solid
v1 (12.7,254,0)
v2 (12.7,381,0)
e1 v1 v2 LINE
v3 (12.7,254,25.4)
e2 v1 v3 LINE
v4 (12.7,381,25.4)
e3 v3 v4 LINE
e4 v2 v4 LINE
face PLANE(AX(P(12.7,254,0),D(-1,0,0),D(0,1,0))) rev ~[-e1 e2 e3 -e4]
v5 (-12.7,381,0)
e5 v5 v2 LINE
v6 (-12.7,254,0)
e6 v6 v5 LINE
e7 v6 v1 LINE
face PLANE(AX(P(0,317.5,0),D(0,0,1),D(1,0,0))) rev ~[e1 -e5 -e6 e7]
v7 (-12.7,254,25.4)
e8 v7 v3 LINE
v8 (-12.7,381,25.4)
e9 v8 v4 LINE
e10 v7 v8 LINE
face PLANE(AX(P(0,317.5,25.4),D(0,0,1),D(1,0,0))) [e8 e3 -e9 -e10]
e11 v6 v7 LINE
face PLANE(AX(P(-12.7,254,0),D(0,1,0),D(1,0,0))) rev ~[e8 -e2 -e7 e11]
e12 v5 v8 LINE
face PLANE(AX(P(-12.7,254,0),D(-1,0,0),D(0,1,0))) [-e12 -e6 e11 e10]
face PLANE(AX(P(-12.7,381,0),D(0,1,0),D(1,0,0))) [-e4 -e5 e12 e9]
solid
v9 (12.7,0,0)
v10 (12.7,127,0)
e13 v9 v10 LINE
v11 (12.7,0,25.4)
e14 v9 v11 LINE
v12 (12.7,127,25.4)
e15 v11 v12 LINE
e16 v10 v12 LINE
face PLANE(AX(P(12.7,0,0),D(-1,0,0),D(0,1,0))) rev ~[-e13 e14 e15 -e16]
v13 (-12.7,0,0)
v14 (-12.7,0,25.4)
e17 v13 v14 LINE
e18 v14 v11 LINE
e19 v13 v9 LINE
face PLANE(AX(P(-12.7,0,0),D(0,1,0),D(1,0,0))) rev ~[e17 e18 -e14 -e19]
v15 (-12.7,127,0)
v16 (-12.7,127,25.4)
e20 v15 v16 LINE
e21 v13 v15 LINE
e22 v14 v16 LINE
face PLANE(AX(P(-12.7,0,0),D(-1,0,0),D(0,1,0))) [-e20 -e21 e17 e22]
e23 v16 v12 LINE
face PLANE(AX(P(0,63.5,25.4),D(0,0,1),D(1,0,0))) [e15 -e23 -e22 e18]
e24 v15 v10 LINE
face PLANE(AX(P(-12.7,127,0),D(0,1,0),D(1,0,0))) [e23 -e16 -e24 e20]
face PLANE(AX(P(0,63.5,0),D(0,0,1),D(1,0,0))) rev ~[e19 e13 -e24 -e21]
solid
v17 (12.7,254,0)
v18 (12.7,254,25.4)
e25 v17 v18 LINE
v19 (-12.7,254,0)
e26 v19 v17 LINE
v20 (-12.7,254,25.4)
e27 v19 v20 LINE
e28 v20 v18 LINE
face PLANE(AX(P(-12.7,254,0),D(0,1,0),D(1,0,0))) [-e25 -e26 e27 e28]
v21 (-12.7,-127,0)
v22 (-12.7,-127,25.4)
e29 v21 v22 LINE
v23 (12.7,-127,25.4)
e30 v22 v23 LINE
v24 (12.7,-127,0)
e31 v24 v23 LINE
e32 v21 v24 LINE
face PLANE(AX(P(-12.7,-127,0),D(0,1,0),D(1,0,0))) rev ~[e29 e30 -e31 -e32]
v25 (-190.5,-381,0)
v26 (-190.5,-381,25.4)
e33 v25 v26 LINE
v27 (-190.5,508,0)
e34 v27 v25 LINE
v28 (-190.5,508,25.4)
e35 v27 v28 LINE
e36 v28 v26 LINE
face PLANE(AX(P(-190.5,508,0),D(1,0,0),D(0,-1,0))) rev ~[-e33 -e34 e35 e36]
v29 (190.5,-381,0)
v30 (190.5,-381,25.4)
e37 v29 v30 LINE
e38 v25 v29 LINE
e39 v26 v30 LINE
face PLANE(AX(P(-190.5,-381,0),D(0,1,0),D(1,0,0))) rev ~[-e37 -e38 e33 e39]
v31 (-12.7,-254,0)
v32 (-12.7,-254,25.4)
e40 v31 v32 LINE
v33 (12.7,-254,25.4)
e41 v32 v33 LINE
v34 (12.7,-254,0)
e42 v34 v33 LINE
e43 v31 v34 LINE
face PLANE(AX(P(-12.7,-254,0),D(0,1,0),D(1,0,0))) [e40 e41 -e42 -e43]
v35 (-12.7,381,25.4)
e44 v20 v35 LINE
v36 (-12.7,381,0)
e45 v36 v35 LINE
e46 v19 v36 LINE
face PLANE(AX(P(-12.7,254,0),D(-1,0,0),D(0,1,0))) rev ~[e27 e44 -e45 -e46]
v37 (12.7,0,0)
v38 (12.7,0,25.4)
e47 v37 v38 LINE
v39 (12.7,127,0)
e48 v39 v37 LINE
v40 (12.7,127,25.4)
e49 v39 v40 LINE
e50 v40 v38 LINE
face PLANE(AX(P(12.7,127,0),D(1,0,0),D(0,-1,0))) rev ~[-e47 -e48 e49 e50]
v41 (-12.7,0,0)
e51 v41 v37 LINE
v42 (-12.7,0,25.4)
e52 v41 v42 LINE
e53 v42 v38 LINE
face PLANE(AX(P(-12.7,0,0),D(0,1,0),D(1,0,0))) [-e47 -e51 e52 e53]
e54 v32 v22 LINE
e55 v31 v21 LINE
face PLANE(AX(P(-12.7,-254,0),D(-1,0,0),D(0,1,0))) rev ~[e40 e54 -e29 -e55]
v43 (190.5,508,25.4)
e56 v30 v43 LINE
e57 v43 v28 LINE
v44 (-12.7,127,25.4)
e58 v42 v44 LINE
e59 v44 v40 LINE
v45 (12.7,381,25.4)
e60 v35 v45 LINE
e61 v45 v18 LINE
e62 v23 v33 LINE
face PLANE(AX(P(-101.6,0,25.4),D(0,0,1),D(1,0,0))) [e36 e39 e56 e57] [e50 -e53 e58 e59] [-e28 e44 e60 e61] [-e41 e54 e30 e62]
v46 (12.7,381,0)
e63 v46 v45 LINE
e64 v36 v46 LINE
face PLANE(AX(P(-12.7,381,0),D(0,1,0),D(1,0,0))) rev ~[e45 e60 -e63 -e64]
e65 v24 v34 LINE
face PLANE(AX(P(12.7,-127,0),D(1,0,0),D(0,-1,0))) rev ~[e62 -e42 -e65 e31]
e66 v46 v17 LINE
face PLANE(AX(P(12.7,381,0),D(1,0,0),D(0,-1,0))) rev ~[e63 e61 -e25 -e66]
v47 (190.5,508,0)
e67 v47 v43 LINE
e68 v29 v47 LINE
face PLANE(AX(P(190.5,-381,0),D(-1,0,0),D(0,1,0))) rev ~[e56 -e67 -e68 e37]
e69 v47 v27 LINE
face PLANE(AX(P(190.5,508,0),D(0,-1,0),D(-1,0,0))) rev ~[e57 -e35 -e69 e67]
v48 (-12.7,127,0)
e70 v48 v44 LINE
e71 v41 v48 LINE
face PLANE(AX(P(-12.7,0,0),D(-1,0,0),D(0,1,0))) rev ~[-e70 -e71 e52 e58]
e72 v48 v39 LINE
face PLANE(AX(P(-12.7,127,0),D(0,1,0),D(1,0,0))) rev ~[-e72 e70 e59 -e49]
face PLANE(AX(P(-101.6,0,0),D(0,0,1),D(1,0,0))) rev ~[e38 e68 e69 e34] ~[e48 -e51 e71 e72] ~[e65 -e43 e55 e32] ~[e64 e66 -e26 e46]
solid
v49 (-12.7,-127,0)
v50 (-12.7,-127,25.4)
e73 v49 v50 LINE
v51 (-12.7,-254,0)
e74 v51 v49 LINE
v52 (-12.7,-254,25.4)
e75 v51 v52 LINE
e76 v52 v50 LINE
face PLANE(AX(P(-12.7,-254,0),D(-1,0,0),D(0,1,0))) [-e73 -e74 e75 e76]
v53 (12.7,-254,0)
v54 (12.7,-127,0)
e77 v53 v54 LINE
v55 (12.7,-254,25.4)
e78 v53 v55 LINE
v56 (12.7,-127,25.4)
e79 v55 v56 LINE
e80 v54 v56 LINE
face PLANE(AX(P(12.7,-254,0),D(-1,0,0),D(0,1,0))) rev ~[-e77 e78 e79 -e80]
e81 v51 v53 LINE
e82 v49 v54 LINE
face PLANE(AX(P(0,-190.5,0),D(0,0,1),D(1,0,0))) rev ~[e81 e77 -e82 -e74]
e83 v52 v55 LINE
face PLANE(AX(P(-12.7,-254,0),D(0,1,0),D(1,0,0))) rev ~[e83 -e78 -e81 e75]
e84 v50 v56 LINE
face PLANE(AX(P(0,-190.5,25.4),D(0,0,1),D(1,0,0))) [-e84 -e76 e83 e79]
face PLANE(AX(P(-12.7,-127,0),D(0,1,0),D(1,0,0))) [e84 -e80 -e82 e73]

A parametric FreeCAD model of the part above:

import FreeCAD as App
import Part
import Sketcher

V = App.Vector
Q = App.Units.Quantity

doc = App.newDocument("Part")
body = doc.addObject("PartDesign::Body", "Body")

# Sketch on XY plane
sketch1 = body.newObject("Sketcher::SketchObject", "Sketch")
sketch1.AttachmentSupport = (doc.getObject("XY_Plane"), [""])
sketch1.MapMode = "FlatFace"
sketch1.addGeometry([
    Part.LineSegment(V(-190.5, -381, 0), V(190.5, -381, 0)),  # 0
    Part.LineSegment(V(190.5, -381, 0), V(190.5, 508, 0)),  # 1
    Part.LineSegment(V(190.5, 508, 0), V(-190.5, 508, 0)),  # 2
    Part.LineSegment(V(-190.5, 508, 0), V(-190.5, -381, 0)),  # 3
    Part.LineSegment(V(-12.7, 254, 0), V(-12.7, 381, 0)),  # 4
    Part.LineSegment(V(-12.7, 381, 0), V(12.7, 381, 0)),  # 5
    Part.LineSegment(V(12.7, 381, 0), V(12.7, 254, 0)),  # 6
    Part.LineSegment(V(12.7, 254, 0), V(-12.7, 254, 0)),  # 7
    Part.LineSegment(V(-12.7, -254, 0), V(-12.7, -127, 0)),  # 8
    Part.LineSegment(V(-12.7, -127, 0), V(12.7, -127, 0)),  # 9
    Part.LineSegment(V(12.7, -127, 0), V(12.7, -254, 0)),  # 10
    Part.LineSegment(V(12.7, -254, 0), V(-12.7, -254, 0)),  # 11
    Part.LineSegment(V(-12.7, 0, 0), V(-12.7, 127, 0)),  # 12
    Part.LineSegment(V(-12.7, 127, 0), V(12.7, 127, 0)),  # 13
    Part.LineSegment(V(12.7, 127, 0), V(12.7, 0, 0)),  # 14
    Part.LineSegment(V(12.7, 0, 0), V(-12.7, 0, 0)),  # 15
], False)
sketch1.addConstraint([
    Sketcher.Constraint("Coincident", 0, 2, 1, 1),
    Sketcher.Constraint("Coincident", 1, 2, 2, 1),
    Sketcher.Constraint("Coincident", 2, 2, 3, 1),
    Sketcher.Constraint("Coincident", 3, 2, 0, 1),
    Sketcher.Constraint("Coincident", 4, 2, 5, 1),
    Sketcher.Constraint("Coincident", 5, 2, 6, 1),
    Sketcher.Constraint("Coincident", 6, 2, 7, 1),
    Sketcher.Constraint("Coincident", 7, 2, 4, 1),
    Sketcher.Constraint("Coincident", 8, 2, 9, 1),
    Sketcher.Constraint("Coincident", 9, 2, 10, 1),
    Sketcher.Constraint("Coincident", 10, 2, 11, 1),
    Sketcher.Constraint("Coincident", 11, 2, 8, 1),
    Sketcher.Constraint("Coincident", 12, 2, 13, 1),
    Sketcher.Constraint("Coincident", 13, 2, 14, 1),
    Sketcher.Constraint("Coincident", 14, 2, 15, 1),
    Sketcher.Constraint("Coincident", 15, 2, 12, 1),
    Sketcher.Constraint("Horizontal", 0),
    Sketcher.Constraint("Vertical", 1),
    Sketcher.Constraint("Horizontal", 2),
    Sketcher.Constraint("Vertical", 3),
    Sketcher.Constraint("Vertical", 4),
    Sketcher.Constraint("Horizontal", 5),
    Sketcher.Constraint("Vertical", 6),
    Sketcher.Constraint("Horizontal", 7),
    Sketcher.Constraint("Vertical", 8),
    Sketcher.Constraint("Horizontal", 9),
    Sketcher.Constraint("Vertical", 10),
    Sketcher.Constraint("Horizontal", 11),
    Sketcher.Constraint("Vertical", 12),
    Sketcher.Constraint("Horizontal", 13),
    Sketcher.Constraint("Vertical", 14),
    Sketcher.Constraint("Horizontal", 15),
    Sketcher.Constraint("Symmetric", 7, 2, 10, 2, -1, 1),
    Sketcher.Constraint("Symmetric", 9, 2, 12, 2, -1, 1),
    Sketcher.Constraint("Symmetric", 14, 2, 15, 2, -1, 1),
    Sketcher.Constraint("Vertical", 7, 2, 8, 2),
    Sketcher.Constraint("Vertical", 6, 2, 9, 2),
    Sketcher.Constraint("Equal", 6, 8),
    Sketcher.Constraint("Equal", 10, 12),
    Sketcher.Constraint("DistanceX", 0, 1, 0, 2, Q("15 in")),
    Sketcher.Constraint("DistanceX", 5, 1, 5, 2, Q("1 in")),
    Sketcher.Constraint("DistanceY", 1, 1, 1, 2, Q("35 in")),
    Sketcher.Constraint("DistanceY", 4, 1, 4, 2, Q("5 in")),
    Sketcher.Constraint("DistanceY", 0, 2, -1, 1, Q("15 in")),
    Sketcher.Constraint("DistanceX", 2, 2, 4, 2, Q("7 in")),
])
pad1 = body.newObject("PartDesign::Pad", "Pad")
pad1.Profile = sketch1
pad1.Length = Q("1 in")
body2 = doc.addObject("PartDesign::Body", "Body001")
body2.AllowCompound = True

# Sketch on XY plane
sketch2 = body2.newObject("Sketcher::SketchObject", "Sketch001")
sketch2.AttachmentSupport = (doc.getObject("XY_Plane001"), [""])
sketch2.MapMode = "FlatFace"
sketch2.addGeometry([
    Part.LineSegment(V(-12.7, 381, 0), V(-12.7, 254, 0)),  # 0
    Part.LineSegment(V(-12.7, 254, 0), V(12.7, 254, 0)),  # 1
    Part.LineSegment(V(12.7, 254, 0), V(12.7, 381, 0)),  # 2
    Part.LineSegment(V(12.7, 381, 0), V(-12.7, 381, 0)),  # 3
    Part.LineSegment(V(-12.7, 127, 0), V(-12.7, 0, 0)),  # 4
    Part.LineSegment(V(-12.7, 0, 0), V(12.7, 0, 0)),  # 5
    Part.LineSegment(V(12.7, 0, 0), V(12.7, 127, 0)),  # 6
    Part.LineSegment(V(12.7, 127, 0), V(-12.7, 127, 0)),  # 7
    Part.LineSegment(V(-12.7, -127, 0), V(-12.7, -254, 0)),  # 8
    Part.LineSegment(V(-12.7, -254, 0), V(12.7, -254, 0)),  # 9
    Part.LineSegment(V(12.7, -254, 0), V(12.7, -127, 0)),  # 10
    Part.LineSegment(V(12.7, -127, 0), V(-12.7, -127, 0)),  # 11
], False)
sketch2.addConstraint([
    Sketcher.Constraint("Coincident", 0, 2, 1, 1),
    Sketcher.Constraint("Coincident", 1, 2, 2, 1),
    Sketcher.Constraint("Coincident", 2, 2, 3, 1),
    Sketcher.Constraint("Coincident", 3, 2, 0, 1),
    Sketcher.Constraint("Coincident", 4, 2, 5, 1),
    Sketcher.Constraint("Coincident", 5, 2, 6, 1),
    Sketcher.Constraint("Coincident", 6, 2, 7, 1),
    Sketcher.Constraint("Coincident", 7, 2, 4, 1),
    Sketcher.Constraint("Coincident", 8, 2, 9, 1),
    Sketcher.Constraint("Coincident", 9, 2, 10, 1),
    Sketcher.Constraint("Coincident", 10, 2, 11, 1),
    Sketcher.Constraint("Coincident", 11, 2, 8, 1),
    Sketcher.Constraint("Vertical", 0),
    Sketcher.Constraint("Horizontal", 1),
    Sketcher.Constraint("Vertical", 2),
    Sketcher.Constraint("Horizontal", 3),
    Sketcher.Constraint("Vertical", 4),
    Sketcher.Constraint("Horizontal", 5),
    Sketcher.Constraint("Vertical", 6),
    Sketcher.Constraint("Horizontal", 7),
    Sketcher.Constraint("Vertical", 8),
    Sketcher.Constraint("Horizontal", 9),
    Sketcher.Constraint("Vertical", 10),
    Sketcher.Constraint("Horizontal", 11),
    Sketcher.Constraint("Symmetric", 4, 2, 5, 2, -1, 1),
    Sketcher.Constraint("Symmetric", 1, 2, 8, 2, -1, 1),
    Sketcher.Constraint("Symmetric", 7, 2, 10, 2, -1, 1),
    Sketcher.Constraint("Vertical", 3, 2, 4, 2),
    Sketcher.Constraint("Vertical", 2, 2, 5, 2),
    Sketcher.Constraint("Equal", 2, 4),
    Sketcher.Constraint("Equal", 6, 8),
    Sketcher.Constraint("DistanceX", 1, 1, 1, 2, Q("1 in")),
    Sketcher.Constraint("DistanceY", 0, 2, 0, 1, Q("5 in")),
])
pad2 = body2.newObject("PartDesign::Pad", "Pad001")
pad2.Profile = sketch2
pad2.Length = Q("1 in")

doc.recompute()
